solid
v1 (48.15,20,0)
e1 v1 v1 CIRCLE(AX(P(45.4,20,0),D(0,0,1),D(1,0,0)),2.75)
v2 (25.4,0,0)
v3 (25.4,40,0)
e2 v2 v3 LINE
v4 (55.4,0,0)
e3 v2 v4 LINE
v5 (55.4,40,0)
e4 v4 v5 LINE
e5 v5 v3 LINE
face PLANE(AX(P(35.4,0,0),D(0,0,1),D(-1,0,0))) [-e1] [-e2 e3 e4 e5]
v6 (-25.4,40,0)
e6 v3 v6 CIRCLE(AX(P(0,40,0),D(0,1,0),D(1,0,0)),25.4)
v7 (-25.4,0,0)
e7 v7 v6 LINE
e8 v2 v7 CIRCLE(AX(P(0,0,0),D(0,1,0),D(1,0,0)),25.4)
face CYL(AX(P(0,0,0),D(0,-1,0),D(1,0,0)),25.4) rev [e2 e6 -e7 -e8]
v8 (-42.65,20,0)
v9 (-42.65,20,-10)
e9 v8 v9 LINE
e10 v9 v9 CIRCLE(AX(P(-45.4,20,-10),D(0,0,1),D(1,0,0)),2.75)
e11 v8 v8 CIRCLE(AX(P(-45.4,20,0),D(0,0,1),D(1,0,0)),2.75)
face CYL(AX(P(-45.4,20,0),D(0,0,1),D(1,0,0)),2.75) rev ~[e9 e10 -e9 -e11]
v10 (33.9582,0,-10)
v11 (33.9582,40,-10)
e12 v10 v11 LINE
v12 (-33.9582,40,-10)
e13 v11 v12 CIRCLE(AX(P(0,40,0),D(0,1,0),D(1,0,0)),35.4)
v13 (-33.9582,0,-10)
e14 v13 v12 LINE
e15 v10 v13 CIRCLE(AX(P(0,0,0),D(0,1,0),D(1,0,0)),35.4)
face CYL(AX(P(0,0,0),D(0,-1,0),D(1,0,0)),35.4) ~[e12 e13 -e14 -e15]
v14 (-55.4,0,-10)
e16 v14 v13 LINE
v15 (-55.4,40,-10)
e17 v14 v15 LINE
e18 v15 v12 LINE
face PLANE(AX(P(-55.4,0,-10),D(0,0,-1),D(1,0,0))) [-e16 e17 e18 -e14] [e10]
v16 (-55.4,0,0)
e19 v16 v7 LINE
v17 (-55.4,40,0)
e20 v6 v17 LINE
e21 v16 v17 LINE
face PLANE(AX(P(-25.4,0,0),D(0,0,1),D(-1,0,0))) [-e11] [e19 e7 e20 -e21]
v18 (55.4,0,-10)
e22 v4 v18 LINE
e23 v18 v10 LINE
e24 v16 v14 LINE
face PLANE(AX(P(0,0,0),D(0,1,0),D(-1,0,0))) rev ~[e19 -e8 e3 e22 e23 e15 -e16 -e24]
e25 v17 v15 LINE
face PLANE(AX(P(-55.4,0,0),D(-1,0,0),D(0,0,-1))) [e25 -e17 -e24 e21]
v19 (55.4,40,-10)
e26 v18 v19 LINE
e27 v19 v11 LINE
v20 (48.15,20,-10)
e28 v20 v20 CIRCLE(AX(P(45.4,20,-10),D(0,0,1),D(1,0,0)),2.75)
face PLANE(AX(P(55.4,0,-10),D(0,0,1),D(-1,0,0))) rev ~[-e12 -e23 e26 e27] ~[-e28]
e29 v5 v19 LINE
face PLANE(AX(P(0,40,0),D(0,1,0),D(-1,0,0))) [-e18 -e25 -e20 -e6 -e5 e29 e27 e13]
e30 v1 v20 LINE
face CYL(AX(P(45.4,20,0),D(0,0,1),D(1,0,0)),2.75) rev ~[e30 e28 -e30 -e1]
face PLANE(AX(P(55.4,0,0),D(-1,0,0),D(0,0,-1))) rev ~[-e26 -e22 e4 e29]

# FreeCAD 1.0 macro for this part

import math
import FreeCAD as App
import Part
import Sketcher

V = App.Vector

doc = App.newDocument("Part")
body = doc.addObject("PartDesign::Body", "Body")

# Sketch on XZ plane
sketch1 = body.newObject("Sketcher::SketchObject", "Sketch")
sketch1.AttachmentSupport = (doc.getObject("XZ_Plane"), [""])
sketch1.MapMode = "FlatFace"
sketch1.addGeometry([
    Part.ArcOfCircle(Part.Circle(V(0, 0, 0), V(0, 0, 1), 25.4), math.radians(180), math.radians(360)),  # 0
    Part.LineSegment(V(25.4, 0, 0), V(55.4, 0, 0)),  # 1
    Part.LineSegment(V(55.4, 0, 0), V(55.4, -10, 0)),  # 2
    Part.LineSegment(V(55.4, -10, 0), V(33.9582, -10, 0)),  # 3
    Part.ArcOfCircle(Part.Circle(V(0, 0, 0), V(0, 0, 1), 35.4), math.radians(-163.59137), math.radians(-16.40863)),  # 4
    Part.LineSegment(V(-33.9582, -10, 0), V(-55.4, -10, 0)),  # 5
    Part.LineSegment(V(-55.4, -10, 0), V(-55.4, 0, 0)),  # 6
    Part.LineSegment(V(-55.4, 0, 0), V(-25.4, 0, 0)),  # 7
], False)
sketch1.addConstraint([
    Sketcher.Constraint("Coincident", 0, 2, 1, 1),
    Sketcher.Constraint("Coincident", 1, 2, 2, 1),
    Sketcher.Constraint("Coincident", 2, 2, 3, 1),
    Sketcher.Constraint("Coincident", 3, 2, 4, 2),
    Sketcher.Constraint("Coincident", 4, 1, 5, 1),
    Sketcher.Constraint("Coincident", 5, 2, 6, 1),
    Sketcher.Constraint("Coincident", 6, 2, 7, 1),
    Sketcher.Constraint("Coincident", 7, 2, 0, 1),
    Sketcher.Constraint("Horizontal", 1),
    Sketcher.Constraint("Vertical", 2),
    Sketcher.Constraint("Horizontal", 3),
    Sketcher.Constraint("Horizontal", 5),
    Sketcher.Constraint("Vertical", 6),
    Sketcher.Constraint("Horizontal", 7),
    Sketcher.Constraint("Coincident", 0, 3, -1, 1),
    Sketcher.Constraint("Coincident", 4, 3, -1, 1),
    Sketcher.Constraint("Symmetric", 1, 2, 6, 2, -1, 1),
    Sketcher.Constraint("PointOnObject", 0, 2, -1),
    Sketcher.Constraint("Horizontal", 3, 2, 4, 1),
    Sketcher.Constraint("Radius", 0, 25.4),
    Sketcher.Constraint("DistanceY", 2, 2, 2, 1, 10.0),
    Sketcher.Constraint("Radius", 4, 35.4),
    Sketcher.Constraint("DistanceX", 1, 1, 1, 2, 30.0),
])
pad1 = body.newObject("PartDesign::Pad", "Pad")
pad1.Profile = sketch1
pad1.Length = 40
pad1.Reversed = True

# Sketch on XY plane
sketch2 = body.newObject("Sketcher::SketchObject", "Sketch001")
sketch2.AttachmentSupport = (doc.getObject("XY_Plane"), [""])
sketch2.MapMode = "FlatFace"
sketch2.addGeometry([
    Part.Circle(V(-45.4, 20, 0), V(0, 0, 1), 2.75),
    Part.Circle(V(45.4, 20, 0), V(0, 0, 1), 2.75),
], False)
sketch2.addConstraint([
    Sketcher.Constraint("Equal", 0, 1),
    Sketcher.Constraint("Symmetric", 0, 3, 1, 3, -2),
    Sketcher.Constraint("Diameter", 0, 5.5),
    Sketcher.Constraint("DistanceY", -1, 1, 0, 3, 20.0),
    Sketcher.Constraint("DistanceX", 0, 3, -1, 1, 45.4),
])
pocket1 = body.newObject("PartDesign::Pocket", "Pocket")
pocket1.Profile = sketch2
pocket1.Length = 40

doc.recompute()
